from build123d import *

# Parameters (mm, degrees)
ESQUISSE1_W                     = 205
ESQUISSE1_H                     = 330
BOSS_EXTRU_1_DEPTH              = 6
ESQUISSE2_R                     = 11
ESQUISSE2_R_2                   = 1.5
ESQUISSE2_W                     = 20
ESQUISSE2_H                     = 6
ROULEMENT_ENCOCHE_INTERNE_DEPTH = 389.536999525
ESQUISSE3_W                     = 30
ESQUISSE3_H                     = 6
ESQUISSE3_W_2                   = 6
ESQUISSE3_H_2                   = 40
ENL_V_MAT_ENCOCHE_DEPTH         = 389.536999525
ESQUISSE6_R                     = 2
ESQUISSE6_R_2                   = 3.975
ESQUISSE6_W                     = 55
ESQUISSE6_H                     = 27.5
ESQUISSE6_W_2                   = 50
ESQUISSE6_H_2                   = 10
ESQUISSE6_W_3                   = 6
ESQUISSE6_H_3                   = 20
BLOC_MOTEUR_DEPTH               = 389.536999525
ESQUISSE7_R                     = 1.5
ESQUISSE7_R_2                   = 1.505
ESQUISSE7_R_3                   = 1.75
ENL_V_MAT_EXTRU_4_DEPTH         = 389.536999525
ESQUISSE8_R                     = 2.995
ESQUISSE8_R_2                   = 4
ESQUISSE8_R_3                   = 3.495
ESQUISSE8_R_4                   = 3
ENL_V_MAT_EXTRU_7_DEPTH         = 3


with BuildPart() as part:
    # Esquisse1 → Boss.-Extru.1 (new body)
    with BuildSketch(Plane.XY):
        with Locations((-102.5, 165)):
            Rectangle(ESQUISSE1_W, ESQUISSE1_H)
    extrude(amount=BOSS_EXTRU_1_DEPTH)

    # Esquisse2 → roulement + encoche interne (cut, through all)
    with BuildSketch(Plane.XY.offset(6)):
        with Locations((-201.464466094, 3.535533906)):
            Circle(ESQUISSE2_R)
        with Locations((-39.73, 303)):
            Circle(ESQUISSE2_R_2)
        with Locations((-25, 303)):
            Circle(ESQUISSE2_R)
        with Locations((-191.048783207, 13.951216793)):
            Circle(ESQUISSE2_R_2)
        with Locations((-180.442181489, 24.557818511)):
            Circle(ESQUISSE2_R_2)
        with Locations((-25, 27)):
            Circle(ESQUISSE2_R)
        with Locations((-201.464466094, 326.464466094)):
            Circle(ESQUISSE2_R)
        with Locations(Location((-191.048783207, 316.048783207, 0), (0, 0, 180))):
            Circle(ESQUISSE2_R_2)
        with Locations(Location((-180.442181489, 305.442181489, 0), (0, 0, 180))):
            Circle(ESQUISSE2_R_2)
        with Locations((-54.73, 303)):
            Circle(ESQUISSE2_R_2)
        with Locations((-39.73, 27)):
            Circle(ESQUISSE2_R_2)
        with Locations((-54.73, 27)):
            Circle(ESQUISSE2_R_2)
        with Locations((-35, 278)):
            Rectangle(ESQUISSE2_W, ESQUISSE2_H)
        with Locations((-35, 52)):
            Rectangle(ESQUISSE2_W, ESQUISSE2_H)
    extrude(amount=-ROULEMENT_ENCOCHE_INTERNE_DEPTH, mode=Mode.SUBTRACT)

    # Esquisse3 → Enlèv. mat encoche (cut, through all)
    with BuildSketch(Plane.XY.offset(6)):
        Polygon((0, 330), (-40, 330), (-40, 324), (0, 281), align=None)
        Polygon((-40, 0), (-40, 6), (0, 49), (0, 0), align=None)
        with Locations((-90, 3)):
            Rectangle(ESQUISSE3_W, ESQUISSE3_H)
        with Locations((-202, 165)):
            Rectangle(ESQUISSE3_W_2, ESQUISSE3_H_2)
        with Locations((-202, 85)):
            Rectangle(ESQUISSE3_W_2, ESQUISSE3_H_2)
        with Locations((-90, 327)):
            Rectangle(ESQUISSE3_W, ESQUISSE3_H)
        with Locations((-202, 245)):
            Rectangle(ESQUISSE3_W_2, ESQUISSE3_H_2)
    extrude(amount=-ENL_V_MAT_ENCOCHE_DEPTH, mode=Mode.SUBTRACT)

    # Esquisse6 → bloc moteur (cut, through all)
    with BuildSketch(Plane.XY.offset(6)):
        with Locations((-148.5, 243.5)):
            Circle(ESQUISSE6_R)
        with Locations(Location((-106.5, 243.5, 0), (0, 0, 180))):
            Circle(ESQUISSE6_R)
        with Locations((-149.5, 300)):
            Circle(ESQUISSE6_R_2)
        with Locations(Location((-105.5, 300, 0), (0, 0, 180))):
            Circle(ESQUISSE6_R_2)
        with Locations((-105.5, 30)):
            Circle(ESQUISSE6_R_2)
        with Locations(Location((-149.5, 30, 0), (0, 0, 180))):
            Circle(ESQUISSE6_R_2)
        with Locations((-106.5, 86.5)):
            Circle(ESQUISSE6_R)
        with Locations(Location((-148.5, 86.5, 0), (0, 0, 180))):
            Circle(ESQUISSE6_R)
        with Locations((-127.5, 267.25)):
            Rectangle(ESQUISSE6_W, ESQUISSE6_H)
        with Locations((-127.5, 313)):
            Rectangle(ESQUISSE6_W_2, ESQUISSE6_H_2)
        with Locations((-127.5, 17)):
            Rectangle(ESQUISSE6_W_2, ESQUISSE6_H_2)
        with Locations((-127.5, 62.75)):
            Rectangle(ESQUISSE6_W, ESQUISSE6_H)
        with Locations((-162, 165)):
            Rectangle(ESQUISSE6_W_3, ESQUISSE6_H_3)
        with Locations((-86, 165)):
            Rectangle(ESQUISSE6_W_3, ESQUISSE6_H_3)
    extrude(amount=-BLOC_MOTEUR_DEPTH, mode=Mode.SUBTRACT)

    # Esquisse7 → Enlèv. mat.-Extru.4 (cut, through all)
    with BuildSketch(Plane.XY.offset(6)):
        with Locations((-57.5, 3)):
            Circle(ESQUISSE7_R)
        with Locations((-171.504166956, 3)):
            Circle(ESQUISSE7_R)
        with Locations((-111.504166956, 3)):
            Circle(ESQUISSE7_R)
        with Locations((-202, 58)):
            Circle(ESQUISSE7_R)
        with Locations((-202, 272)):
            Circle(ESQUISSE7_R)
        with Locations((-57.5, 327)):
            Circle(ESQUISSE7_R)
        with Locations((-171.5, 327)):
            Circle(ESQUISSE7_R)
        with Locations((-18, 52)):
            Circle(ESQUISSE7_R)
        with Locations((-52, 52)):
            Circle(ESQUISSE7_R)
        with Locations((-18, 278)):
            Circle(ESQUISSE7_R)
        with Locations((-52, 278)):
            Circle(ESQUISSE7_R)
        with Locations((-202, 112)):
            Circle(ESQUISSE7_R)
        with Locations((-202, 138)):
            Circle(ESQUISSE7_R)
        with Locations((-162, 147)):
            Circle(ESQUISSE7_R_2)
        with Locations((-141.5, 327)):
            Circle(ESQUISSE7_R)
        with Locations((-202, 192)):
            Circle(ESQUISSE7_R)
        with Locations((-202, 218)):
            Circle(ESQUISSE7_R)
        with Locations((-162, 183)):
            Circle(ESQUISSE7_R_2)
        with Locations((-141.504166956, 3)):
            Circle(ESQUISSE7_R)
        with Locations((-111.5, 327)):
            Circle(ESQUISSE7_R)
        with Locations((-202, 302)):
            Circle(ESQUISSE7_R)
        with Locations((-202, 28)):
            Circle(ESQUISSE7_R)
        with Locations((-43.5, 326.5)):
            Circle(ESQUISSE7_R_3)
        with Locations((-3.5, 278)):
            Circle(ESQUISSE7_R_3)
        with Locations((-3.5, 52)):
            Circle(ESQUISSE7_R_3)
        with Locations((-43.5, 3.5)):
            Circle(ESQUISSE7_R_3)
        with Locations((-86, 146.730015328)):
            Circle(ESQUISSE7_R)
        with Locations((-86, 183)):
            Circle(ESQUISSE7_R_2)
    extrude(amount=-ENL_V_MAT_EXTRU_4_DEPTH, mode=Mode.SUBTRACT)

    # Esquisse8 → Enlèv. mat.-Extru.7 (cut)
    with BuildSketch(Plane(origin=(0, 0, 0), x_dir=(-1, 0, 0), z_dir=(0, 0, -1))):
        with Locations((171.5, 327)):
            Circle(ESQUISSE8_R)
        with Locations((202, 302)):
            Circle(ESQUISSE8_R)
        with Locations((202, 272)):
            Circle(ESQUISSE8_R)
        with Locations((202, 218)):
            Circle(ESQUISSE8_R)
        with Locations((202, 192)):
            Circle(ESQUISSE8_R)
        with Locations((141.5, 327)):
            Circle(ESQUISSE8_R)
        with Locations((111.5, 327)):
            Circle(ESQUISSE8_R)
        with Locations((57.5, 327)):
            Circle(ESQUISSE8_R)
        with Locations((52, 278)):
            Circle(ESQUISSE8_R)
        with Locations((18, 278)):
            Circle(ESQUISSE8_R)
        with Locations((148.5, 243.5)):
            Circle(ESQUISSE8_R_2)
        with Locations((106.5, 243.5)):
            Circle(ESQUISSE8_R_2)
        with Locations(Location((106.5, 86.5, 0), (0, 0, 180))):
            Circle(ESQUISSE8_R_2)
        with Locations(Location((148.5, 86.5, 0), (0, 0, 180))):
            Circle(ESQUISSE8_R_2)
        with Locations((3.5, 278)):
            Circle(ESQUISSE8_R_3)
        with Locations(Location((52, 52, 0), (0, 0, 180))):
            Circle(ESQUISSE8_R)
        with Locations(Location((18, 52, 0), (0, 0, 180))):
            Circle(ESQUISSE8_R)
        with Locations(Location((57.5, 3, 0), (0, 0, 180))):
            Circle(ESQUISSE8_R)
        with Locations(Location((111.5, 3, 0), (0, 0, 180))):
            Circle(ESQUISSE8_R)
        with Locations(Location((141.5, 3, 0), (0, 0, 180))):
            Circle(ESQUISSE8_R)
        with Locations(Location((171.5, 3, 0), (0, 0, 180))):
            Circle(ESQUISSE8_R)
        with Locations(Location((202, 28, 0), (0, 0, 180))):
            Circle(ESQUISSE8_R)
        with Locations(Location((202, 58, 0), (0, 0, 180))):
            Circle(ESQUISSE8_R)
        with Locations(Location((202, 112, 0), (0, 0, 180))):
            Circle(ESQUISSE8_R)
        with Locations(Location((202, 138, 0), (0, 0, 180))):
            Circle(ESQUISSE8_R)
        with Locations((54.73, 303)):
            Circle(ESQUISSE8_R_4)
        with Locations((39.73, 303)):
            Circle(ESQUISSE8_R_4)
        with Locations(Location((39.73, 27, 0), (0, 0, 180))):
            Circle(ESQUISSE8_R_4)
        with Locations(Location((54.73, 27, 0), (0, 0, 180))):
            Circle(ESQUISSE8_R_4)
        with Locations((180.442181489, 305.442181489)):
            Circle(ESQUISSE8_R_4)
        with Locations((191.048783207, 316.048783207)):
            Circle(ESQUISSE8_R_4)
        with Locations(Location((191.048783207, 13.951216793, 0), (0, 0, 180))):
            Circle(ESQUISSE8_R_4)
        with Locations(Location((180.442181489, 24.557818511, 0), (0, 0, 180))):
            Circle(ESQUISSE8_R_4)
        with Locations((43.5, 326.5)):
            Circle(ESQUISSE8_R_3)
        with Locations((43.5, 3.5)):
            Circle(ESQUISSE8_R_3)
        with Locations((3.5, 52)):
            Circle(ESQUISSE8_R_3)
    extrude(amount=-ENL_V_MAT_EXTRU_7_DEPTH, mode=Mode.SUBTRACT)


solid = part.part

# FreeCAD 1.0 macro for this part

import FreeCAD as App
import Part
import Sketcher
from FreeCAD import Vector
Q = App.Units.Quantity


def add_polygon(sketch, points):
    """Adds a closed chain of lines whose ends are joined by coincident constraints."""
    first, n = sketch.GeometryCount, len(points)
    for a, b in zip(points, points[1:] + points[:1]):
        sketch.addGeometry(Part.LineSegment(App.Vector(*a, 0), App.Vector(*b, 0)), False)
    for i in range(n):
        sketch.addConstraint(Sketcher.Constraint("Coincident", first + i, 2, first + (i + 1) % n, 1))

doc = App.newDocument("Part")
body = doc.addObject("PartDesign::Body", "Body")

# Sketch on XY plane
sketch1 = doc.addObject("Sketcher::SketchObject", "Sketch")
body.addObject(sketch1)
sketch1.AttachmentSupport = (doc.XY_Plane, [""])
sketch1.MapMode = "FlatFace"
add_polygon(sketch1, [(-205, 330), (-205, 0), (0, 0), (0, 330)])  # lines 0-3
sketch1.addConstraint(Sketcher.Constraint("Vertical", 0))
sketch1.addConstraint(Sketcher.Constraint("Horizontal", 1))
sketch1.addConstraint(Sketcher.Constraint("Vertical", 2))
sketch1.addConstraint(Sketcher.Constraint("Horizontal", 3))
sketch1.addConstraint(Sketcher.Constraint("Coincident", 1, 2, -1, 1))
sketch1.addConstraint(Sketcher.Constraint("DistanceX", 1, 1, 1, 2, Q("205 mm")))
sketch1.addConstraint(Sketcher.Constraint("DistanceY", 0, 2, 0, 1, Q("330 mm")))
pad1 = doc.addObject("PartDesign::Pad", "Pad")
body.addObject(pad1)
pad1.Profile = sketch1
pad1.Length = 6

# Sketch on XY plane
sketch2 = doc.addObject("Sketcher::SketchObject", "Sketch001")
body.addObject(sketch2)
sketch2.AttachmentSupport = (doc.XY_Plane, [""])
sketch2.MapMode = "FlatFace"
sketch2.AttachmentOffset = App.Placement(Vector(0, 0, 6), App.Rotation())
sketch2.addGeometry(Part.Circle(Vector(-201.464466, 3.535534, 0), Vector(0, 0, 1), 11), False)  # 0
sketch2.addGeometry(Part.Circle(Vector(-39.73, 303, 0), Vector(0, 0, 1), 1.5), False)  # 1
sketch2.addGeometry(Part.Circle(Vector(-25, 303, 0), Vector(0, 0, 1), 11), False)  # 2
sketch2.addGeometry(Part.Circle(Vector(-191.048783, 13.951217, 0), Vector(0, 0, 1), 1.5), False)  # 3
sketch2.addGeometry(Part.Circle(Vector(-180.442181, 24.557819, 0), Vector(0, 0, 1), 1.5), False)  # 4
sketch2.addGeometry(Part.Circle(Vector(-25, 27, 0), Vector(0, 0, 1), 11), False)  # 5
sketch2.addGeometry(Part.Circle(Vector(-201.464466, 326.464466, 0), Vector(0, 0, 1), 11), False)  # 6
sketch2.addGeometry(Part.Circle(Vector(-191.048783, 316.048783, 0), Vector(0, 0, 1), 1.5), False)  # 7
sketch2.addGeometry(Part.Circle(Vector(-180.442181, 305.442181, 0), Vector(0, 0, 1), 1.5), False)  # 8
sketch2.addGeometry(Part.Circle(Vector(-54.73, 303, 0), Vector(0, 0, 1), 1.5), False)  # 9
sketch2.addGeometry(Part.Circle(Vector(-39.73, 27, 0), Vector(0, 0, 1), 1.5), False)  # 10
sketch2.addGeometry(Part.Circle(Vector(-54.73, 27, 0), Vector(0, 0, 1), 1.5), False)  # 11
add_polygon(sketch2, [(-45, 281), (-45, 275), (-25, 275), (-25, 281)])  # lines 12-15
add_polygon(sketch2, [(-45, 55), (-45, 49), (-25, 49), (-25, 55)])  # lines 16-19
sketch2.addConstraint(Sketcher.Constraint("Vertical", 12))
sketch2.addConstraint(Sketcher.Constraint("Horizontal", 13))
sketch2.addConstraint(Sketcher.Constraint("Vertical", 14))
sketch2.addConstraint(Sketcher.Constraint("Horizontal", 15))
sketch2.addConstraint(Sketcher.Constraint("Vertical", 16))
sketch2.addConstraint(Sketcher.Constraint("Horizontal", 17))
sketch2.addConstraint(Sketcher.Constraint("Vertical", 18))
sketch2.addConstraint(Sketcher.Constraint("Horizontal", 19))
sketch2.addConstraint(Sketcher.Constraint("Equal", 0, 2))
sketch2.addConstraint(Sketcher.Constraint("Equal", 1, 3))
sketch2.addConstraint(Sketcher.Constraint("Equal", 3, 4))
sketch2.addConstraint(Sketcher.Constraint("Equal", 2, 5))
sketch2.addConstraint(Sketcher.Constraint("Equal", 5, 6))
sketch2.addConstraint(Sketcher.Constraint("Equal", 4, 7))
sketch2.addConstraint(Sketcher.Constraint("Equal", 7, 8))
sketch2.addConstraint(Sketcher.Constraint("Equal", 8, 9))
sketch2.addConstraint(Sketcher.Constraint("Equal", 9, 10))
sketch2.addConstraint(Sketcher.Constraint("Equal", 10, 11))
sketch2.addConstraint(Sketcher.Constraint("Horizontal", 1, 3, 2, 3))
sketch2.addConstraint(Sketcher.Constraint("Horizontal", 2, 3, 9, 3))
sketch2.addConstraint(Sketcher.Constraint("Horizontal", 5, 3, 10, 3))
sketch2.addConstraint(Sketcher.Constraint("Horizontal", 10, 3, 11, 3))
sketch2.addConstraint(Sketcher.Constraint("Vertical", 2, 3, 5, 3))
sketch2.addConstraint(Sketcher.Constraint("Vertical", 0, 3, 6, 3))
sketch2.addConstraint(Sketcher.Constraint("Vertical", 3, 3, 7, 3))
sketch2.addConstraint(Sketcher.Constraint("Vertical", 4, 3, 8, 3))
sketch2.addConstraint(Sketcher.Constraint("Vertical", 1, 3, 10, 3))
sketch2.addConstraint(Sketcher.Constraint("Vertical", 9, 3, 11, 3))
sketch2.addConstraint(Sketcher.Constraint("Vertical", 5, 3, 13, 2))
sketch2.addConstraint(Sketcher.Constraint("Vertical", 15, 2, 16, 2))
sketch2.addConstraint(Sketcher.Constraint("Vertical", 14, 2, 17, 2))
sketch2.addConstraint(Sketcher.Constraint("Equal", 14, 16))
sketch2.addConstraint(Sketcher.Constraint("Diameter", 0, Q("22 mm")))
sketch2.addConstraint(Sketcher.Constraint("Diameter", 1, Q("3 mm")))
sketch2.addConstraint(Sketcher.Constraint("DistanceX", 13, 1, 13, 2, Q("20 mm")))
sketch2.addConstraint(Sketcher.Constraint("DistanceY", 12, 2, 12, 1, Q("6 mm")))
sketch2.addConstraint(Sketcher.Constraint("DistanceY", -1, 1, 1, 3, Q("303 mm")))
sketch2.addConstraint(Sketcher.Constraint("DistanceX", 2, 3, -1, 1, Q("25 mm")))
sketch2.addConstraint(Sketcher.Constraint("DistanceY", -1, 1, 5, 3, Q("27 mm")))
sketch2.addConstraint(Sketcher.Constraint("DistanceY", -1, 1, 12, 2, Q("275 mm")))
sketch2.addConstraint(Sketcher.Constraint("DistanceY", -1, 1, 16, 2, Q("49 mm")))
sketch2.addConstraint(Sketcher.Constraint("DistanceX", 9, 3, 1, 3, Q("15 mm")))
sketch2.addConstraint(Sketcher.Constraint("DistanceX", 1, 3, -1, 1, Q("39.73 mm")))
sketch2.addConstraint(Sketcher.Constraint("DistanceX", 3, 3, 4, 3, Q("10.606602 mm")))
sketch2.addConstraint(Sketcher.Constraint("DistanceY", 3, 3, 4, 3, Q("10.606602 mm")))
sketch2.addConstraint(Sketcher.Constraint("DistanceY", 8, 3, 7, 3, Q("10.606602 mm")))
sketch2.addConstraint(Sketcher.Constraint("DistanceX", 4, 3, -1, 1, Q("180.442181 mm")))
sketch2.addConstraint(Sketcher.Constraint("DistanceY", -1, 1, 4, 3, Q("24.557819 mm")))
sketch2.addConstraint(Sketcher.Constraint("DistanceY", -1, 1, 8, 3, Q("305.442181 mm")))
sketch2.addConstraint(Sketcher.Constraint("DistanceY", 3, 3, 6, 3, Q("312.513249 mm")))
sketch2.addConstraint(Sketcher.Constraint("DistanceX", 0, 3, -1, 1, Q("201.464466 mm")))
sketch2.addConstraint(Sketcher.Constraint("DistanceY", -1, 1, 0, 3, Q("3.535534 mm")))
pocket1 = doc.addObject("PartDesign::Pocket", "Pocket")
body.addObject(pocket1)
pocket1.Profile = sketch2
pocket1.Type = "ThroughAll"

# Sketch on XY plane
sketch3 = doc.addObject("Sketcher::SketchObject", "Sketch002")
body.addObject(sketch3)
sketch3.AttachmentSupport = (doc.XY_Plane, [""])
sketch3.MapMode = "FlatFace"
sketch3.AttachmentOffset = App.Placement(Vector(0, 0, 6), App.Rotation())
add_polygon(sketch3, [(0, 330), (-40, 330), (-40, 324), (0, 281)])  # lines 0-3
add_polygon(sketch3, [(-40, 6), (-40, 0), (0, 0), (0, 49)])  # lines 4-7
add_polygon(sketch3, [(-105, 6), (-105, 0), (-75, 0), (-75, 6)])  # lines 8-11
add_polygon(sketch3, [(-205, 185), (-205, 145), (-199, 145), (-199, 185)])  # lines 12-15
add_polygon(sketch3, [(-205, 105), (-205, 65), (-199, 65), (-199, 105)])  # lines 16-19
add_polygon(sketch3, [(-105, 330), (-105, 324), (-75, 324), (-75, 330)])  # lines 20-23
add_polygon(sketch3, [(-205, 265), (-205, 225), (-199, 225), (-199, 265)])  # lines 24-27
sketch3.addConstraint(Sketcher.Constraint("Horizontal", 0))
sketch3.addConstraint(Sketcher.Constraint("Vertical", 1))
sketch3.addConstraint(Sketcher.Constraint("Vertical", 3))
sketch3.addConstraint(Sketcher.Constraint("Vertical", 4))
sketch3.addConstraint(Sketcher.Constraint("Horizontal", 5))
sketch3.addConstraint(Sketcher.Constraint("Vertical", 6))
sketch3.addConstraint(Sketcher.Constraint("Vertical", 8))
sketch3.addConstraint(Sketcher.Constraint("Horizontal", 9))
sketch3.addConstraint(Sketcher.Constraint("Vertical", 10))
sketch3.addConstraint(Sketcher.Constraint("Horizontal", 11))
sketch3.addConstraint(Sketcher.Constraint("Vertical", 12))
sketch3.addConstraint(Sketcher.Constraint("Horizontal", 13))
sketch3.addConstraint(Sketcher.Constraint("Vertical", 14))
sketch3.addConstraint(Sketcher.Constraint("Horizontal", 15))
sketch3.addConstraint(Sketcher.Constraint("Vertical", 16))
sketch3.addConstraint(Sketcher.Constraint("Horizontal", 17))
sketch3.addConstraint(Sketcher.Constraint("Vertical", 18))
sketch3.addConstraint(Sketcher.Constraint("Horizontal", 19))
sketch3.addConstraint(Sketcher.Constraint("Vertical", 20))
sketch3.addConstraint(Sketcher.Constraint("Horizontal", 21))
sketch3.addConstraint(Sketcher.Constraint("Vertical", 22))
sketch3.addConstraint(Sketcher.Constraint("Horizontal", 23))
sketch3.addConstraint(Sketcher.Constraint("Vertical", 24))
sketch3.addConstraint(Sketcher.Constraint("Horizontal", 25))
sketch3.addConstraint(Sketcher.Constraint("Vertical", 26))
sketch3.addConstraint(Sketcher.Constraint("Horizontal", 27))
sketch3.addConstraint(Sketcher.Constraint("Coincident", 5, 2, -1, 1))
sketch3.addConstraint(Sketcher.Constraint("PointOnObject", 2, 2, -2))
sketch3.addConstraint(Sketcher.Constraint("PointOnObject", 8, 2, -1))
sketch3.addConstraint(Sketcher.Constraint("Horizontal", 7, 2, 10, 2))
sketch3.addConstraint(Sketcher.Constraint("Horizontal", 1, 2, 20, 2))
sketch3.addConstraint(Sketcher.Constraint("Horizontal", 3, 2, 22, 2))
sketch3.addConstraint(Sketcher.Constraint("Vertical", 1, 2, 4, 2))
sketch3.addConstraint(Sketcher.Constraint("Vertical", 15, 2, 16, 2))
sketch3.addConstraint(Sketcher.Constraint("Vertical", 14, 2, 17, 2))
sketch3.addConstraint(Sketcher.Constraint("Vertical", 11, 2, 20, 2))
sketch3.addConstraint(Sketcher.Constraint("Vertical", 10, 2, 21, 2))
sketch3.addConstraint(Sketcher.Constraint("Vertical", 19, 2, 24, 2))
sketch3.addConstraint(Sketcher.Constraint("Vertical", 18, 2, 25, 2))
sketch3.addConstraint(Sketcher.Constraint("Equal", 27, 1))
sketch3.addConstraint(Sketcher.Constraint("Equal", 1, 4))
sketch3.addConstraint(Sketcher.Constraint("Equal", 3, 6))
sketch3.addConstraint(Sketcher.Constraint("Equal", 5, 12))
sketch3.addConstraint(Sketcher.Constraint("Equal", 14, 16))
sketch3.addConstraint(Sketcher.Constraint("Equal", 18, 24))
sketch3.addConstraint(Sketcher.Constraint("DistanceX", 0, 2, 0, 1, Q("40 mm")))
sketch3.addConstraint(Sketcher.Constraint("DistanceX", 9, 1, 9, 2, Q("30 mm")))
sketch3.addConstraint(Sketcher.Constraint("DistanceX", 13, 1, 13, 2, Q("6 mm")))
sketch3.addConstraint(Sketcher.Constraint("DistanceY", 3, 1, 3, 2, Q("49 mm")))
sketch3.addConstraint(Sketcher.Constraint("DistanceY", -1, 1, 0, 2, Q("330 mm")))
sketch3.addConstraint(Sketcher.Constraint("DistanceX", 8, 2, -1, 1, Q("105 mm")))
sketch3.addConstraint(Sketcher.Constraint("DistanceX", 12, 2, -1, 1, Q("205 mm")))
sketch3.addConstraint(Sketcher.Constraint("DistanceY", -1, 1, 12, 2, Q("145 mm")))
sketch3.addConstraint(Sketcher.Constraint("DistanceY", -1, 1, 16, 2, Q("65 mm")))
sketch3.addConstraint(Sketcher.Constraint("DistanceY", -1, 1, 24, 2, Q("225 mm")))
pocket2 = doc.addObject("PartDesign::Pocket", "Pocket001")
body.addObject(pocket2)
pocket2.Profile = sketch3
pocket2.Type = "ThroughAll"

# Sketch on XY plane
sketch4 = doc.addObject("Sketcher::SketchObject", "Sketch003")
body.addObject(sketch4)
sketch4.AttachmentSupport = (doc.XY_Plane, [""])
sketch4.MapMode = "FlatFace"
sketch4.AttachmentOffset = App.Placement(Vector(0, 0, 6), App.Rotation())
sketch4.addGeometry(Part.Circle(Vector(-148.5, 243.5, 0), Vector(0, 0, 1), 2), False)  # 0
sketch4.addGeometry(Part.Circle(Vector(-106.5, 243.5, 0), Vector(0, 0, 1), 2), False)  # 1
sketch4.addGeometry(Part.Circle(Vector(-149.5, 300, 0), Vector(0, 0, 1), 3.975), False)  # 2
sketch4.addGeometry(Part.Circle(Vector(-105.5, 300, 0), Vector(0, 0, 1), 3.975), False)  # 3
sketch4.addGeometry(Part.Circle(Vector(-105.5, 30, 0), Vector(0, 0, 1), 3.975), False)  # 4
sketch4.addGeometry(Part.Circle(Vector(-149.5, 30, 0), Vector(0, 0, 1), 3.975), False)  # 5
sketch4.addGeometry(Part.Circle(Vector(-106.5, 86.5, 0), Vector(0, 0, 1), 2), False)  # 6
sketch4.addGeometry(Part.Circle(Vector(-148.5, 86.5, 0), Vector(0, 0, 1), 2), False)  # 7
add_polygon(sketch4, [(-155, 281), (-155, 253.5), (-100, 253.5), (-100, 281)])  # lines 8-11
add_polygon(sketch4, [(-152.5, 318), (-152.5, 308), (-102.5, 308), (-102.5, 318)])  # lines 12-15
add_polygon(sketch4, [(-152.5, 22), (-152.5, 12), (-102.5, 12), (-102.5, 22)])  # lines 16-19
add_polygon(sketch4, [(-155, 76.5), (-155, 49), (-100, 49), (-100, 76.5)])  # lines 20-23
add_polygon(sketch4, [(-165, 175), (-165, 155), (-159, 155), (-159, 175)])  # lines 24-27
add_polygon(sketch4, [(-89, 175), (-89, 155), (-83, 155), (-83, 175)])  # lines 28-31
sketch4.addConstraint(Sketcher.Constraint("Vertical", 8))
sketch4.addConstraint(Sketcher.Constraint("Horizontal", 9))
sketch4.addConstraint(Sketcher.Constraint("Vertical", 10))
sketch4.addConstraint(Sketcher.Constraint("Horizontal", 11))
sketch4.addConstraint(Sketcher.Constraint("Vertical", 12))
sketch4.addConstraint(Sketcher.Constraint("Horizontal", 13))
sketch4.addConstraint(Sketcher.Constraint("Vertical", 14))
sketch4.addConstraint(Sketcher.Constraint("Horizontal", 15))
sketch4.addConstraint(Sketcher.Constraint("Vertical", 16))
sketch4.addConstraint(Sketcher.Constraint("Horizontal", 17))
sketch4.addConstraint(Sketcher.Constraint("Vertical", 18))
sketch4.addConstraint(Sketcher.Constraint("Horizontal", 19))
sketch4.addConstraint(Sketcher.Constraint("Vertical", 20))
sketch4.addConstraint(Sketcher.Constraint("Horizontal", 21))
sketch4.addConstraint(Sketcher.Constraint("Vertical", 22))
sketch4.addConstraint(Sketcher.Constraint("Horizontal", 23))
sketch4.addConstraint(Sketcher.Constraint("Vertical", 24))
sketch4.addConstraint(Sketcher.Constraint("Horizontal", 25))
sketch4.addConstraint(Sketcher.Constraint("Vertical", 26))
sketch4.addConstraint(Sketcher.Constraint("Horizontal", 27))
sketch4.addConstraint(Sketcher.Constraint("Vertical", 28))
sketch4.addConstraint(Sketcher.Constraint("Horizontal", 29))
sketch4.addConstraint(Sketcher.Constraint("Vertical", 30))
sketch4.addConstraint(Sketcher.Constraint("Horizontal", 31))
sketch4.addConstraint(Sketcher.Constraint("Equal", 0, 1))
sketch4.addConstraint(Sketcher.Constraint("Equal", 2, 3))
sketch4.addConstraint(Sketcher.Constraint("Equal", 3, 4))
sketch4.addConstraint(Sketcher.Constraint("Equal", 4, 5))
sketch4.addConstraint(Sketcher.Constraint("Equal", 1, 6))
sketch4.addConstraint(Sketcher.Constraint("Equal", 6, 7))
sketch4.addConstraint(Sketcher.Constraint("Horizontal", 0, 3, 1, 3))
sketch4.addConstraint(Sketcher.Constraint("Horizontal", 2, 3, 3, 3))
sketch4.addConstraint(Sketcher.Constraint("Horizontal", 4, 3, 5, 3))
sketch4.addConstraint(Sketcher.Constraint("Horizontal", 6, 3, 7, 3))
sketch4.addConstraint(Sketcher.Constraint("Horizontal", 25, 2, 28, 2))
sketch4.addConstraint(Sketcher.Constraint("Horizontal", 27, 2, 30, 2))
sketch4.addConstraint(Sketcher.Constraint("Vertical", 3, 3, 4, 3))
sketch4.addConstraint(Sketcher.Constraint("Vertical", 2, 3, 5, 3))
sketch4.addConstraint(Sketcher.Constraint("Vertical", 1, 3, 6, 3))
sketch4.addConstraint(Sketcher.Constraint("Vertical", 0, 3, 7, 3))
sketch4.addConstraint(Sketcher.Constraint("Vertical", 15, 2, 16, 2))
sketch4.addConstraint(Sketcher.Constraint("Vertical", 14, 2, 17, 2))
sketch4.addConstraint(Sketcher.Constraint("Vertical", 11, 2, 20, 2))
sketch4.addConstraint(Sketcher.Constraint("Vertical", 10, 2, 21, 2))
sketch4.addConstraint(Sketcher.Constraint("Equal", 27, 29))
sketch4.addConstraint(Sketcher.Constraint("Equal", 14, 16))
sketch4.addConstraint(Sketcher.Constraint("Equal", 10, 20))
sketch4.addConstraint(Sketcher.Constraint("Diameter", 0, Q("4 mm")))
sketch4.addConstraint(Sketcher.Constraint("Diameter", 2, Q("7.95 mm")))
sketch4.addConstraint(Sketcher.Constraint("DistanceX", 9, 1, 9, 2, Q("55 mm")))
sketch4.addConstraint(Sketcher.Constraint("DistanceX", 13, 1, 13, 2, Q("50 mm")))
sketch4.addConstraint(Sketcher.Constraint("DistanceX", 25, 1, 25, 2, Q("6 mm")))
sketch4.addConstraint(Sketcher.Constraint("DistanceY", 12, 2, 12, 1, Q("10 mm")))
sketch4.addConstraint(Sketcher.Constraint("DistanceY", 24, 2, 24, 1, Q("20 mm")))
sketch4.addConstraint(Sketcher.Constraint("DistanceY", 8, 2, 8, 1, Q("27.5 mm")))
sketch4.addConstraint(Sketcher.Constraint("DistanceY", -1, 1, 2, 3, Q("300 mm")))
sketch4.addConstraint(Sketcher.Constraint("DistanceY", -1, 1, 4, 3, Q("30 mm")))
sketch4.addConstraint(Sketcher.Constraint("DistanceX", 8, 2, -1, 1, Q("155 mm")))
sketch4.addConstraint(Sketcher.Constraint("DistanceY", -1, 1, 10, 2, Q("281 mm")))
sketch4.addConstraint(Sketcher.Constraint("DistanceY", -1, 1, 12, 2, Q("308 mm")))
sketch4.addConstraint(Sketcher.Constraint("DistanceY", -1, 1, 16, 2, Q("12 mm")))
sketch4.addConstraint(Sketcher.Constraint("DistanceY", -1, 1, 20, 2, Q("49 mm")))
sketch4.addConstraint(Sketcher.Constraint("DistanceX", 24, 2, -1, 1, Q("165 mm")))
sketch4.addConstraint(Sketcher.Constraint("DistanceY", -1, 1, 24, 2, Q("155 mm")))
sketch4.addConstraint(Sketcher.Constraint("DistanceX", 28, 2, -1, 1, Q("89 mm")))
sketch4.addConstraint(Sketcher.Constraint("DistanceX", 0, 3, 1, 3, Q("42 mm")))
sketch4.addConstraint(Sketcher.Constraint("DistanceX", 2, 3, 0, 3, Q("1 mm")))
sketch4.addConstraint(Sketcher.Constraint("DistanceX", 2, 3, 3, 3, Q("44 mm")))
sketch4.addConstraint(Sketcher.Constraint("DistanceY", 6, 3, 1, 3, Q("157 mm")))
sketch4.addConstraint(Sketcher.Constraint("DistanceY", 0, 3, 8, 2, Q("10 mm")))
sketch4.addConstraint(Sketcher.Constraint("DistanceX", 12, 2, 2, 3, Q("3 mm")))
sketch4.addConstraint(Sketcher.Constraint("DistanceX", 0, 3, -1, 1, Q("148.5 mm")))
pocket3 = doc.addObject("PartDesign::Pocket", "Pocket002")
body.addObject(pocket3)
pocket3.Profile = sketch4
pocket3.Type = "ThroughAll"

# Sketch on XY plane
sketch5 = doc.addObject("Sketcher::SketchObject", "Sketch004")
body.addObject(sketch5)
sketch5.AttachmentSupport = (doc.XY_Plane, [""])
sketch5.MapMode = "FlatFace"
sketch5.AttachmentOffset = App.Placement(Vector(0, 0, 6), App.Rotation())
sketch5.addGeometry(Part.Circle(Vector(-57.5, 3, 0), Vector(0, 0, 1), 1.5), False)
sketch5.addGeometry(Part.Circle(Vector(-171.504167, 3, 0), Vector(0, 0, 1), 1.5), False)
sketch5.addGeometry(Part.Circle(Vector(-111.504167, 3, 0), Vector(0, 0, 1), 1.5), False)
sketch5.addGeometry(Part.Circle(Vector(-202, 58, 0), Vector(0, 0, 1), 1.5), False)
sketch5.addGeometry(Part.Circle(Vector(-202, 272, 0), Vector(0, 0, 1), 1.5), False)
sketch5.addGeometry(Part.Circle(Vector(-57.5, 327, 0), Vector(0, 0, 1), 1.5), False)
sketch5.addGeometry(Part.Circle(Vector(-171.5, 327, 0), Vector(0, 0, 1), 1.5), False)
sketch5.addGeometry(Part.Circle(Vector(-18, 52, 0), Vector(0, 0, 1), 1.5), False)
sketch5.addGeometry(Part.Circle(Vector(-52, 52, 0), Vector(0, 0, 1), 1.5), False)
sketch5.addGeometry(Part.Circle(Vector(-18, 278, 0), Vector(0, 0, 1), 1.5), False)
sketch5.addGeometry(Part.Circle(Vector(-52, 278, 0), Vector(0, 0, 1), 1.5), False)
sketch5.addGeometry(Part.Circle(Vector(-202, 112, 0), Vector(0, 0, 1), 1.5), False)
sketch5.addGeometry(Part.Circle(Vector(-202, 138, 0), Vector(0, 0, 1), 1.5), False)
sketch5.addGeometry(Part.Circle(Vector(-162, 147, 0), Vector(0, 0, 1), 1.505), False)
sketch5.addGeometry(Part.Circle(Vector(-141.5, 327, 0), Vector(0, 0, 1), 1.5), False)
sketch5.addGeometry(Part.Circle(Vector(-202, 192, 0), Vector(0, 0, 1), 1.5), False)
sketch5.addGeometry(Part.Circle(Vector(-202, 218, 0), Vector(0, 0, 1), 1.5), False)
sketch5.addGeometry(Part.Circle(Vector(-162, 183, 0), Vector(0, 0, 1), 1.505), False)
sketch5.addGeometry(Part.Circle(Vector(-141.504167, 3, 0), Vector(0, 0, 1), 1.5), False)
sketch5.addGeometry(Part.Circle(Vector(-111.5, 327, 0), Vector(0, 0, 1), 1.5), False)
sketch5.addGeometry(Part.Circle(Vector(-202, 302, 0), Vector(0, 0, 1), 1.5), False)
sketch5.addGeometry(Part.Circle(Vector(-202, 28, 0), Vector(0, 0, 1), 1.5), False)
sketch5.addGeometry(Part.Circle(Vector(-43.5, 326.5, 0), Vector(0, 0, 1), 1.75), False)
sketch5.addGeometry(Part.Circle(Vector(-3.5, 278, 0), Vector(0, 0, 1), 1.75), False)
sketch5.addGeometry(Part.Circle(Vector(-3.5, 52, 0), Vector(0, 0, 1), 1.75), False)
sketch5.addGeometry(Part.Circle(Vector(-43.5, 3.5, 0), Vector(0, 0, 1), 1.75), False)
sketch5.addGeometry(Part.Circle(Vector(-86, 146.730015, 0), Vector(0, 0, 1), 1.5), False)
sketch5.addGeometry(Part.Circle(Vector(-86, 183, 0), Vector(0, 0, 1), 1.505), False)
sketch5.addConstraint(Sketcher.Constraint("Equal", 0, 1))
sketch5.addConstraint(Sketcher.Constraint("Equal", 1, 2))
sketch5.addConstraint(Sketcher.Constraint("Equal", 2, 3))
sketch5.addConstraint(Sketcher.Constraint("Equal", 3, 4))
sketch5.addConstraint(Sketcher.Constraint("Equal", 4, 5))
sketch5.addConstraint(Sketcher.Constraint("Equal", 5, 6))
sketch5.addConstraint(Sketcher.Constraint("Equal", 6, 7))
sketch5.addConstraint(Sketcher.Constraint("Equal", 7, 8))
sketch5.addConstraint(Sketcher.Constraint("Equal", 8, 9))
sketch5.addConstraint(Sketcher.Constraint("Equal", 9, 10))
sketch5.addConstraint(Sketcher.Constraint("Equal", 10, 11))
sketch5.addConstraint(Sketcher.Constraint("Equal", 11, 12))
sketch5.addConstraint(Sketcher.Constraint("Equal", 12, 14))
sketch5.addConstraint(Sketcher.Constraint("Equal", 14, 15))
sketch5.addConstraint(Sketcher.Constraint("Equal", 15, 16))
sketch5.addConstraint(Sketcher.Constraint("Equal", 13, 17))
sketch5.addConstraint(Sketcher.Constraint("Equal", 16, 18))
sketch5.addConstraint(Sketcher.Constraint("Equal", 18, 19))
sketch5.addConstraint(Sketcher.Constraint("Equal", 19, 20))
sketch5.addConstraint(Sketcher.Constraint("Equal", 20, 21))
sketch5.addConstraint(Sketcher.Constraint("Equal", 22, 23))
sketch5.addConstraint(Sketcher.Constraint("Equal", 23, 24))
sketch5.addConstraint(Sketcher.Constraint("Equal", 24, 25))
sketch5.addConstraint(Sketcher.Constraint("Equal", 21, 26))
sketch5.addConstraint(Sketcher.Constraint("Equal", 17, 27))
sketch5.addConstraint(Sketcher.Constraint("Horizontal", 0, 3, 1, 3))
sketch5.addConstraint(Sketcher.Constraint("Horizontal", 1, 3, 2, 3))
sketch5.addConstraint(Sketcher.Constraint("Horizontal", 5, 3, 6, 3))
sketch5.addConstraint(Sketcher.Constraint("Horizontal", 7, 3, 8, 3))
sketch5.addConstraint(Sketcher.Constraint("Horizontal", 9, 3, 10, 3))
sketch5.addConstraint(Sketcher.Constraint("Horizontal", 6, 3, 14, 3))
sketch5.addConstraint(Sketcher.Constraint("Horizontal", 2, 3, 18, 3))
sketch5.addConstraint(Sketcher.Constraint("Horizontal", 14, 3, 19, 3))
sketch5.addConstraint(Sketcher.Constraint("Horizontal", 10, 3, 23, 3))
sketch5.addConstraint(Sketcher.Constraint("Horizontal", 8, 3, 24, 3))
sketch5.addConstraint(Sketcher.Constraint("Horizontal", 17, 3, 27, 3))
sketch5.addConstraint(Sketcher.Constraint("Vertical", 3, 3, 4, 3))
sketch5.addConstraint(Sketcher.Constraint("Vertical", 0, 3, 5, 3))
sketch5.addConstraint(Sketcher.Constraint("Vertical", 7, 3, 9, 3))
sketch5.addConstraint(Sketcher.Constraint("Vertical", 8, 3, 10, 3))
sketch5.addConstraint(Sketcher.Constraint("Vertical", 4, 3, 11, 3))
sketch5.addConstraint(Sketcher.Constraint("Vertical", 11, 3, 12, 3))
sketch5.addConstraint(Sketcher.Constraint("Vertical", 12, 3, 15, 3))
sketch5.addConstraint(Sketcher.Constraint("Vertical", 15, 3, 16, 3))
sketch5.addConstraint(Sketcher.Constraint("Vertical", 13, 3, 17, 3))
sketch5.addConstraint(Sketcher.Constraint("Vertical", 16, 3, 20, 3))
sketch5.addConstraint(Sketcher.Constraint("Vertical", 20, 3, 21, 3))
sketch5.addConstraint(Sketcher.Constraint("Vertical", 23, 3, 24, 3))
sketch5.addConstraint(Sketcher.Constraint("Vertical", 22, 3, 25, 3))
sketch5.addConstraint(Sketcher.Constraint("Vertical", 26, 3, 27, 3))
sketch5.addConstraint(Sketcher.Constraint("Diameter", 0, Q("3 mm")))
sketch5.addConstraint(Sketcher.Constraint("Diameter", 22, Q("3.5 mm")))
sketch5.addConstraint(Sketcher.Constraint("Diameter", 13, Q("3.01 mm")))
sketch5.addConstraint(Sketcher.Constraint("DistanceY", -1, 1, 0, 3, Q("3 mm")))
sketch5.addConstraint(Sketcher.Constraint("DistanceX", 3, 3, -1, 1, Q("202 mm")))
sketch5.addConstraint(Sketcher.Constraint("DistanceY", -1, 1, 3, 3, Q("58 mm")))
sketch5.addConstraint(Sketcher.Constraint("DistanceY", -1, 1, 4, 3, Q("272 mm")))
sketch5.addConstraint(Sketcher.Constraint("DistanceY", -1, 1, 5, 3, Q("327 mm")))
sketch5.addConstraint(Sketcher.Constraint("DistanceX", 7, 3, -1, 1, Q("18 mm")))
sketch5.addConstraint(Sketcher.Constraint("DistanceY", -1, 1, 7, 3, Q("52 mm")))
sketch5.addConstraint(Sketcher.Constraint("DistanceX", 8, 3, -1, 1, Q("52 mm")))
sketch5.addConstraint(Sketcher.Constraint("DistanceY", -1, 1, 9, 3, Q("278 mm")))
sketch5.addConstraint(Sketcher.Constraint("DistanceY", -1, 1, 11, 3, Q("112 mm")))
sketch5.addConstraint(Sketcher.Constraint("DistanceY", -1, 1, 12, 3, Q("138 mm")))
sketch5.addConstraint(Sketcher.Constraint("DistanceX", 13, 3, -1, 1, Q("162 mm")))
sketch5.addConstraint(Sketcher.Constraint("DistanceY", -1, 1, 13, 3, Q("147 mm")))
sketch5.addConstraint(Sketcher.Constraint("DistanceY", -1, 1, 15, 3, Q("192 mm")))
sketch5.addConstraint(Sketcher.Constraint("DistanceY", -1, 1, 16, 3, Q("218 mm")))
sketch5.addConstraint(Sketcher.Constraint("DistanceY", -1, 1, 17, 3, Q("183 mm")))
sketch5.addConstraint(Sketcher.Constraint("DistanceY", -1, 1, 20, 3, Q("302 mm")))
sketch5.addConstraint(Sketcher.Constraint("DistanceY", -1, 1, 21, 3, Q("28 mm")))
sketch5.addConstraint(Sketcher.Constraint("DistanceX", 26, 3, -1, 1, Q("86 mm")))
sketch5.addConstraint(Sketcher.Constraint("DistanceX", 1, 3, 2, 3, Q("60 mm")))
sketch5.addConstraint(Sketcher.Constraint("DistanceX", 6, 3, 5, 3, Q("114 mm")))
sketch5.addConstraint(Sketcher.Constraint("DistanceX", 6, 3, 14, 3, Q("30 mm")))
sketch5.addConstraint(Sketcher.Constraint("DistanceX", 1, 3, 18, 3, Q("30 mm")))
sketch5.addConstraint(Sketcher.Constraint("DistanceX", 14, 3, 19, 3, Q("30 mm")))
sketch5.addConstraint(Sketcher.Constraint("DistanceX", 5, 3, 22, 3, Q("14 mm")))
sketch5.addConstraint(Sketcher.Constraint("DistanceX", 22, 3, 23, 3, Q("40 mm")))
sketch5.addConstraint(Sketcher.Constraint("DistanceX", 0, 3, -1, 1, Q("57.5 mm")))
sketch5.addConstraint(Sketcher.Constraint("DistanceY", -1, 1, 22, 3, Q("326.5 mm")))
sketch5.addConstraint(Sketcher.Constraint("DistanceY", -1, 1, 25, 3, Q("3.5 mm")))
sketch5.addConstraint(Sketcher.Constraint("DistanceX", 1, 3, -1, 1, Q("171.504167 mm")))
sketch5.addConstraint(Sketcher.Constraint("DistanceY", -1, 1, 26, 3, Q("146.730015 mm")))
pocket4 = doc.addObject("PartDesign::Pocket", "Pocket003")
body.addObject(pocket4)
pocket4.Profile = sketch5
pocket4.Type = "ThroughAll"

# Sketch on XY plane
sketch6 = doc.addObject("Sketcher::SketchObject", "Sketch005")
body.addObject(sketch6)
sketch6.AttachmentSupport = (doc.XY_Plane, [""])
sketch6.MapMode = "FlatFace"
sketch6.addGeometry(Part.Circle(Vector(-171.5, 327, 0), Vector(0, 0, 1), 2.995), False)
sketch6.addGeometry(Part.Circle(Vector(-202, 302, 0), Vector(0, 0, 1), 2.995), False)
sketch6.addGeometry(Part.Circle(Vector(-202, 272, 0), Vector(0, 0, 1), 2.995), False)
sketch6.addGeometry(Part.Circle(Vector(-202, 218, 0), Vector(0, 0, 1), 2.995), False)
sketch6.addGeometry(Part.Circle(Vector(-202, 192, 0), Vector(0, 0, 1), 2.995), False)
sketch6.addGeometry(Part.Circle(Vector(-141.5, 327, 0), Vector(0, 0, 1), 2.995), False)
sketch6.addGeometry(Part.Circle(Vector(-111.5, 327, 0), Vector(0, 0, 1), 2.995), False)
sketch6.addGeometry(Part.Circle(Vector(-57.5, 327, 0), Vector(0, 0, 1), 2.995), False)
sketch6.addGeometry(Part.Circle(Vector(-52, 278, 0), Vector(0, 0, 1), 2.995), False)
sketch6.addGeometry(Part.Circle(Vector(-18, 278, 0), Vector(0, 0, 1), 2.995), False)
sketch6.addGeometry(Part.Circle(Vector(-148.5, 243.5, 0), Vector(0, 0, 1), 4), False)
sketch6.addGeometry(Part.Circle(Vector(-106.5, 243.5, 0), Vector(0, 0, 1), 4), False)
sketch6.addGeometry(Part.Circle(Vector(-106.5, 86.5, 0), Vector(0, 0, 1), 4), False)
sketch6.addGeometry(Part.Circle(Vector(-148.5, 86.5, 0), Vector(0, 0, 1), 4), False)
sketch6.addGeometry(Part.Circle(Vector(-3.5, 278, 0), Vector(0, 0, 1), 3.495), False)
sketch6.addGeometry(Part.Circle(Vector(-52, 52, 0), Vector(0, 0, 1), 2.995), False)
sketch6.addGeometry(Part.Circle(Vector(-18, 52, 0), Vector(0, 0, 1), 2.995), False)
sketch6.addGeometry(Part.Circle(Vector(-57.5, 3, 0), Vector(0, 0, 1), 2.995), False)
sketch6.addGeometry(Part.Circle(Vector(-111.5, 3, 0), Vector(0, 0, 1), 2.995), False)
sketch6.addGeometry(Part.Circle(Vector(-141.5, 3, 0), Vector(0, 0, 1), 2.995), False)
sketch6.addGeometry(Part.Circle(Vector(-171.5, 3, 0), Vector(0, 0, 1), 2.995), False)
sketch6.addGeometry(Part.Circle(Vector(-202, 28, 0), Vector(0, 0, 1), 2.995), False)
sketch6.addGeometry(Part.Circle(Vector(-202, 58, 0), Vector(0, 0, 1), 2.995), False)
sketch6.addGeometry(Part.Circle(Vector(-202, 112, 0), Vector(0, 0, 1), 2.995), False)
sketch6.addGeometry(Part.Circle(Vector(-202, 138, 0), Vector(0, 0, 1), 2.995), False)
sketch6.addGeometry(Part.Circle(Vector(-54.73, 303, 0), Vector(0, 0, 1), 3), False)
sketch6.addGeometry(Part.Circle(Vector(-39.73, 303, 0), Vector(0, 0, 1), 3), False)
sketch6.addGeometry(Part.Circle(Vector(-39.73, 27, 0), Vector(0, 0, 1), 3), False)
sketch6.addGeometry(Part.Circle(Vector(-54.73, 27, 0), Vector(0, 0, 1), 3), False)
sketch6.addGeometry(Part.Circle(Vector(-180.442181, 305.442181, 0), Vector(0, 0, 1), 3), False)
sketch6.addGeometry(Part.Circle(Vector(-191.048783, 316.048783, 0), Vector(0, 0, 1), 3), False)
sketch6.addGeometry(Part.Circle(Vector(-191.048783, 13.951217, 0), Vector(0, 0, 1), 3), False)
sketch6.addGeometry(Part.Circle(Vector(-180.442181, 24.557819, 0), Vector(0, 0, 1), 3), False)
sketch6.addGeometry(Part.Circle(Vector(-43.5, 326.5, 0), Vector(0, 0, 1), 3.495), False)
sketch6.addGeometry(Part.Circle(Vector(-43.5, 3.5, 0), Vector(0, 0, 1), 3.495), False)
sketch6.addGeometry(Part.Circle(Vector(-3.5, 52, 0), Vector(0, 0, 1), 3.495), False)
sketch6.addConstraint(Sketcher.Constraint("Equal", 0, 1))
sketch6.addConstraint(Sketcher.Constraint("Equal", 1, 2))
sketch6.addConstraint(Sketcher.Constraint("Equal", 2, 3))
sketch6.addConstraint(Sketcher.Constraint("Equal", 3, 4))
sketch6.addConstraint(Sketcher.Constraint("Equal", 4, 5))
sketch6.addConstraint(Sketcher.Constraint("Equal", 5, 6))
sketch6.addConstraint(Sketcher.Constraint("Equal", 6, 7))
sketch6.addConstraint(Sketcher.Constraint("Equal", 7, 8))
sketch6.addConstraint(Sketcher.Constraint("Equal", 8, 9))
sketch6.addConstraint(Sketcher.Constraint("Equal", 10, 11))
sketch6.addConstraint(Sketcher.Constraint("Equal", 11, 12))
sketch6.addConstraint(Sketcher.Constraint("Equal", 12, 13))
sketch6.addConstraint(Sketcher.Constraint("Equal", 9, 15))
sketch6.addConstraint(Sketcher.Constraint("Equal", 15, 16))
sketch6.addConstraint(Sketcher.Constraint("Equal", 16, 17))
sketch6.addConstraint(Sketcher.Constraint("Equal", 17, 18))
sketch6.addConstraint(Sketcher.Constraint("Equal", 18, 19))
sketch6.addConstraint(Sketcher.Constraint("Equal", 19, 20))
sketch6.addConstraint(Sketcher.Constraint("Equal", 20, 21))
sketch6.addConstraint(Sketcher.Constraint("Equal", 21, 22))
sketch6.addConstraint(Sketcher.Constraint("Equal", 22, 23))
sketch6.addConstraint(Sketcher.Constraint("Equal", 23, 24))
sketch6.addConstraint(Sketcher.Constraint("Equal", 25, 26))
sketch6.addConstraint(Sketcher.Constraint("Equal", 26, 27))
sketch6.addConstraint(Sketcher.Constraint("Equal", 27, 28))
sketch6.addConstraint(Sketcher.Constraint("Equal", 28, 29))
sketch6.addConstraint(Sketcher.Constraint("Equal", 29, 30))
sketch6.addConstraint(Sketcher.Constraint("Equal", 30, 31))
sketch6.addConstraint(Sketcher.Constraint("Equal", 31, 32))
sketch6.addConstraint(Sketcher.Constraint("Equal", 14, 33))
sketch6.addConstraint(Sketcher.Constraint("Equal", 33, 34))
sketch6.addConstraint(Sketcher.Constraint("Equal", 34, 35))
sketch6.addConstraint(Sketcher.Constraint("Horizontal", 0, 3, 5, 3))
sketch6.addConstraint(Sketcher.Constraint("Horizontal", 5, 3, 6, 3))
sketch6.addConstraint(Sketcher.Constraint("Horizontal", 6, 3, 7, 3))
sketch6.addConstraint(Sketcher.Constraint("Horizontal", 8, 3, 9, 3))
sketch6.addConstraint(Sketcher.Constraint("Horizontal", 10, 3, 11, 3))
sketch6.addConstraint(Sketcher.Constraint("Horizontal", 12, 3, 13, 3))
sketch6.addConstraint(Sketcher.Constraint("Horizontal", 9, 3, 14, 3))
sketch6.addConstraint(Sketcher.Constraint("Horizontal", 15, 3, 16, 3))
sketch6.addConstraint(Sketcher.Constraint("Horizontal", 17, 3, 18, 3))
sketch6.addConstraint(Sketcher.Constraint("Horizontal", 18, 3, 19, 3))
sketch6.addConstraint(Sketcher.Constraint("Horizontal", 19, 3, 20, 3))
sketch6.addConstraint(Sketcher.Constraint("Horizontal", 25, 3, 26, 3))
sketch6.addConstraint(Sketcher.Constraint("Horizontal", 27, 3, 28, 3))
sketch6.addConstraint(Sketcher.Constraint("Horizontal", 16, 3, 35, 3))
sketch6.addConstraint(Sketcher.Constraint("Vertical", 1, 3, 2, 3))
sketch6.addConstraint(Sketcher.Constraint("Vertical", 2, 3, 3, 3))
sketch6.addConstraint(Sketcher.Constraint("Vertical", 3, 3, 4, 3))
sketch6.addConstraint(Sketcher.Constraint("Vertical", 11, 3, 12, 3))
sketch6.addConstraint(Sketcher.Constraint("Vertical", 10, 3, 13, 3))
sketch6.addConstraint(Sketcher.Constraint("Vertical", 8, 3, 15, 3))
sketch6.addConstraint(Sketcher.Constraint("Vertical", 9, 3, 16, 3))
sketch6.addConstraint(Sketcher.Constraint("Vertical", 7, 3, 17, 3))
sketch6.addConstraint(Sketcher.Constraint("Vertical", 6, 3, 18, 3))
sketch6.addConstraint(Sketcher.Constraint("Vertical", 5, 3, 19, 3))
sketch6.addConstraint(Sketcher.Constraint("Vertical", 0, 3, 20, 3))
sketch6.addConstraint(Sketcher.Constraint("Vertical", 4, 3, 21, 3))
sketch6.addConstraint(Sketcher.Constraint("Vertical", 21, 3, 22, 3))
sketch6.addConstraint(Sketcher.Constraint("Vertical", 22, 3, 23, 3))
sketch6.addConstraint(Sketcher.Constraint("Vertical", 23, 3, 24, 3))
sketch6.addConstraint(Sketcher.Constraint("Vertical", 26, 3, 27, 3))
sketch6.addConstraint(Sketcher.Constraint("Vertical", 25, 3, 28, 3))
sketch6.addConstraint(Sketcher.Constraint("Vertical", 30, 3, 31, 3))
sketch6.addConstraint(Sketcher.Constraint("Vertical", 29, 3, 32, 3))
sketch6.addConstraint(Sketcher.Constraint("Vertical", 33, 3, 34, 3))
sketch6.addConstraint(Sketcher.Constraint("Vertical", 14, 3, 35, 3))
sketch6.addConstraint(Sketcher.Constraint("Diameter", 10, Q("8 mm")))
sketch6.addConstraint(Sketcher.Constraint("Diameter", 25, Q("6 mm")))
sketch6.addConstraint(Sketcher.Constraint("Diameter", 0, Q("5.99 mm")))
sketch6.addConstraint(Sketcher.Constraint("Diameter", 14, Q("6.99 mm")))
sketch6.addConstraint(Sketcher.Constraint("DistanceY", -1, 1, 0, 3, Q("327 mm")))
sketch6.addConstraint(Sketcher.Constraint("DistanceX", 1, 3, -1, 1, Q("202 mm")))
sketch6.addConstraint(Sketcher.Constraint("DistanceY", -1, 1, 1, 3, Q("302 mm")))
sketch6.addConstraint(Sketcher.Constraint("DistanceY", -1, 1, 2, 3, Q("272 mm")))
sketch6.addConstraint(Sketcher.Constraint("DistanceY", -1, 1, 3, 3, Q("218 mm")))
sketch6.addConstraint(Sketcher.Constraint("DistanceY", -1, 1, 4, 3, Q("192 mm")))
sketch6.addConstraint(Sketcher.Constraint("DistanceX", 8, 3, -1, 1, Q("52 mm")))
sketch6.addConstraint(Sketcher.Constraint("DistanceY", -1, 1, 8, 3, Q("278 mm")))
sketch6.addConstraint(Sketcher.Constraint("DistanceX", 9, 3, -1, 1, Q("18 mm")))
sketch6.addConstraint(Sketcher.Constraint("DistanceY", -1, 1, 15, 3, Q("52 mm")))
sketch6.addConstraint(Sketcher.Constraint("DistanceY", -1, 1, 17, 3, Q("3 mm")))
sketch6.addConstraint(Sketcher.Constraint("DistanceY", -1, 1, 21, 3, Q("28 mm")))
sketch6.addConstraint(Sketcher.Constraint("DistanceY", -1, 1, 22, 3, Q("58 mm")))
sketch6.addConstraint(Sketcher.Constraint("DistanceY", -1, 1, 23, 3, Q("112 mm")))
sketch6.addConstraint(Sketcher.Constraint("DistanceY", -1, 1, 24, 3, Q("138 mm")))
sketch6.addConstraint(Sketcher.Constraint("DistanceY", -1, 1, 25, 3, Q("303 mm")))
sketch6.addConstraint(Sketcher.Constraint("DistanceY", -1, 1, 27, 3, Q("27 mm")))
sketch6.addConstraint(Sketcher.Constraint("DistanceX", 0, 3, 5, 3, Q("30 mm")))
sketch6.addConstraint(Sketcher.Constraint("DistanceX", 5, 3, 6, 3, Q("30 mm")))
sketch6.addConstraint(Sketcher.Constraint("DistanceX", 6, 3, 7, 3, Q("54 mm")))
sketch6.addConstraint(Sketcher.Constraint("DistanceX", 10, 3, 5, 3, Q("7 mm")))
sketch6.addConstraint(Sketcher.Constraint("DistanceX", 10, 3, 11, 3, Q("42 mm")))
sketch6.addConstraint(Sketcher.Constraint("DistanceY", 12, 3, 11, 3, Q("157 mm")))
sketch6.addConstraint(Sketcher.Constraint("DistanceX", 7, 3, 14, 3, Q("54 mm")))
sketch6.addConstraint(Sketcher.Constraint("DistanceX", 25, 3, 26, 3, Q("15 mm")))
sketch6.addConstraint(Sketcher.Constraint("DistanceX", 7, 3, 33, 3, Q("14 mm")))
sketch6.addConstraint(Sketcher.Constraint("DistanceX", 0, 3, -1, 1, Q("171.5 mm")))
sketch6.addConstraint(Sketcher.Constraint("DistanceY", -1, 1, 10, 3, Q("243.5 mm")))
sketch6.addConstraint(Sketcher.Constraint("DistanceY", -1, 1, 33, 3, Q("326.5 mm")))
sketch6.addConstraint(Sketcher.Constraint("DistanceY", -1, 1, 34, 3, Q("3.5 mm")))
sketch6.addConstraint(Sketcher.Constraint("DistanceX", 25, 3, -1, 1, Q("54.73 mm")))
sketch6.addConstraint(Sketcher.Constraint("DistanceX", 30, 3, 29, 3, Q("10.606602 mm")))
sketch6.addConstraint(Sketcher.Constraint("DistanceY", 29, 3, 30, 3, Q("10.606602 mm")))
sketch6.addConstraint(Sketcher.Constraint("DistanceY", 31, 3, 32, 3, Q("10.606602 mm")))
sketch6.addConstraint(Sketcher.Constraint("DistanceX", 29, 3, -1, 1, Q("180.442181 mm")))
sketch6.addConstraint(Sketcher.Constraint("DistanceY", -1, 1, 29, 3, Q("305.442181 mm")))
sketch6.addConstraint(Sketcher.Constraint("DistanceY", -1, 1, 32, 3, Q("24.557819 mm")))
pocket5 = doc.addObject("PartDesign::Pocket", "Pocket004")
body.addObject(pocket5)
pocket5.Profile = sketch6
pocket5.Length = 3
pocket5.Reversed = True

doc.recompute()
